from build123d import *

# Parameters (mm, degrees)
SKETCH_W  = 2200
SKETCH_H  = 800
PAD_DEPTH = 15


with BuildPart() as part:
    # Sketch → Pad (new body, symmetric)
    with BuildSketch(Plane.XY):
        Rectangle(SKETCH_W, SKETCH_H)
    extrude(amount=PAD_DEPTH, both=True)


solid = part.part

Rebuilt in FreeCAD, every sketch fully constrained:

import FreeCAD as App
import Part
import Sketcher
from FreeCAD import Vector
Q = App.Units.Quantity


def add_polygon(sketch, points):
    """Adds a closed chain of lines whose ends are joined by coincident constraints."""
    first, n = sketch.GeometryCount, len(points)
    for a, b in zip(points, points[1:] + points[:1]):
        sketch.addGeometry(Part.LineSegment(App.Vector(*a, 0), App.Vector(*b, 0)), False)
    for i in range(n):
        sketch.addConstraint(Sketcher.Constraint("Coincident", first + i, 2, first + (i + 1) % n, 1))

doc = App.newDocument("Part")
body = doc.addObject("PartDesign::Body", "Body")

# Sketch on XY plane
sketch1 = body.newObject("Sketcher::SketchObject", "Sketch")
sketch1.AttachmentSupport = (doc.getObject("XY_Plane"), [""])
sketch1.MapMode = "FlatFace"
add_polygon(sketch1, [(-1100, 400), (-1100, -400), (1100, -400), (1100, 400)])  # lines 0-3
sketch1.addConstraint([
    Sketcher.Constraint("Vertical", 0),
    Sketcher.Constraint("Horizontal", 1),
    Sketcher.Constraint("Vertical", 2),
    Sketcher.Constraint("Horizontal", 3),
    Sketcher.Constraint("Symmetric", 0, 2, 2, 2, -1, 1),
    Sketcher.Constraint("DistanceX", 1, 1, 1, 2, Q("2200 mm")),
    Sketcher.Constraint("DistanceY", 0, 2, 0, 1, Q("800 mm")),
])
pad1 = body.newObject("PartDesign::Pad", "Pad")
pad1.Profile = sketch1
pad1.Length = 30
pad1.Midplane = True

doc.recompute()
